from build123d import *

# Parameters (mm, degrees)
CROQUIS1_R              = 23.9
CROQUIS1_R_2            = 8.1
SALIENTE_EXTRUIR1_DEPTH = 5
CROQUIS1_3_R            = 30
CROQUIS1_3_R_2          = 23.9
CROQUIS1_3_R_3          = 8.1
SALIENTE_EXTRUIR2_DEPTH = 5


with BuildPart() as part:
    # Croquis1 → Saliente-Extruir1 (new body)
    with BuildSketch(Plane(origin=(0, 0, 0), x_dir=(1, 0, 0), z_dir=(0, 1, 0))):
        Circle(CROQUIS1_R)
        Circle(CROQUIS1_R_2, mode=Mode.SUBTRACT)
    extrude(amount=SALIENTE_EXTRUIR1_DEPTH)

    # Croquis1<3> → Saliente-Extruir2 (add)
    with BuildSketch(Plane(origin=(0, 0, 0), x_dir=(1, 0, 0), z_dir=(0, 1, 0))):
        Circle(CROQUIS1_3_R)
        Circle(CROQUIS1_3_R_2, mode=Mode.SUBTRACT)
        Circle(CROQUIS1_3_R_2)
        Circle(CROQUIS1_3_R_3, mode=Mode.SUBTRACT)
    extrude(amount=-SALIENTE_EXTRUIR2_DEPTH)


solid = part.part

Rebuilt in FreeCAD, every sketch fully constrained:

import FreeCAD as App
import Part
import Sketcher
Q = App.Units.Quantity

doc = App.newDocument("Part")
body = doc.addObject("PartDesign::Body", "Body")

# Sketch on XZ plane
sketch1 = doc.addObject("Sketcher::SketchObject", "Sketch")
body.addObject(sketch1)
sketch1.AttachmentSupport = (doc.XZ_Plane, [""])
sketch1.MapMode = "FlatFace"
sketch1.addGeometry(Part.Circle(App.Vector(0, 0, 0), App.Vector(0, 0, 1), 23.9), False)
sketch1.addGeometry(Part.Circle(App.Vector(0, 0, 0), App.Vector(0, 0, 1), 8.1), False)
sketch1.addConstraint(Sketcher.Constraint("Coincident", 0, 3, -1, 1))
sketch1.addConstraint(Sketcher.Constraint("Coincident", 1, 3, -1, 1))
sketch1.addConstraint(Sketcher.Constraint("Diameter", 0, Q("47.8 mm")))
sketch1.addConstraint(Sketcher.Constraint("Diameter", 1, Q("16.2 mm")))
pad1 = doc.addObject("PartDesign::Pad", "Pad")
body.addObject(pad1)
pad1.Profile = sketch1
pad1.Length = 5
pad1.Reversed = True

# Sketch on XZ plane
sketch2 = doc.addObject("Sketcher::SketchObject", "Sketch001")
body.addObject(sketch2)
sketch2.AttachmentSupport = (doc.XZ_Plane, [""])
sketch2.MapMode = "FlatFace"
sketch2.addGeometry(Part.Circle(App.Vector(0, 0, 0), App.Vector(0, 0, 1), 30), False)
sketch2.addGeometry(Part.Circle(App.Vector(0, 0, 0), App.Vector(0, 0, 1), 8.1), False)
sketch2.addConstraint(Sketcher.Constraint("Coincident", 0, 3, -1, 1))
sketch2.addConstraint(Sketcher.Constraint("Coincident", 1, 3, -1, 1))
sketch2.addConstraint(Sketcher.Constraint("Diameter", 0, Q("60 mm")))
sketch2.addConstraint(Sketcher.Constraint("Diameter", 1, Q("16.2 mm")))
pad2 = doc.addObject("PartDesign::Pad", "Pad001")
body.addObject(pad2)
pad2.Profile = sketch2
pad2.Length = 5

doc.recompute()
